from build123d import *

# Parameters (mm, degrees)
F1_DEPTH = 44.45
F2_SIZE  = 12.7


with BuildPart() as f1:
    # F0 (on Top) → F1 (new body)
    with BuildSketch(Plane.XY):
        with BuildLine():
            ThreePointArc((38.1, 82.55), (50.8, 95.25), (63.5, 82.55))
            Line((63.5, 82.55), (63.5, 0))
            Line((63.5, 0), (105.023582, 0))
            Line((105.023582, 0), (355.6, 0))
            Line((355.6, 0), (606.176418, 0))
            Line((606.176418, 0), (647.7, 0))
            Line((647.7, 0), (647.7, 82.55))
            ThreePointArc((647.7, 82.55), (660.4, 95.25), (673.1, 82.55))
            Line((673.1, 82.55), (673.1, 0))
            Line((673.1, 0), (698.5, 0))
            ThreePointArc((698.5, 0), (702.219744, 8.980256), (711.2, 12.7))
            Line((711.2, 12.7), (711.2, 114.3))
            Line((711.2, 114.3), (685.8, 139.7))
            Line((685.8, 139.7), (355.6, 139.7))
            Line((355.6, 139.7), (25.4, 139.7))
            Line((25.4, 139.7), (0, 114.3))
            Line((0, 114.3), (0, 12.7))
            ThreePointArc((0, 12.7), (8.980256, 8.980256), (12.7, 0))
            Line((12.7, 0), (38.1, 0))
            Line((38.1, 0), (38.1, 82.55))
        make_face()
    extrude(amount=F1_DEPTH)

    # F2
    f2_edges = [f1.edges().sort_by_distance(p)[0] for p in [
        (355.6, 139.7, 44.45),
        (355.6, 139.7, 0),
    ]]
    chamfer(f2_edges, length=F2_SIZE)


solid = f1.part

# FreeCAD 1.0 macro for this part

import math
import FreeCAD as App
import Part
import Sketcher
Q = App.Units.Quantity


def edges_at(feature, points):
    """Names of the edges that pass closest to the given points."""
    edges = feature.Shape.Edges
    near = lambda p: min(range(len(edges)), key=lambda i: edges[i].distToShape(Part.Vertex(*p))[0])
    return sorted({f"Edge{near(p) + 1}" for p in points})

doc = App.newDocument("Part")
body = doc.addObject("PartDesign::Body", "Body")

# Sketch on XY plane
sketch1 = doc.addObject("Sketcher::SketchObject", "Sketch")
body.addObject(sketch1)
sketch1.AttachmentSupport = (doc.XY_Plane, [""])
sketch1.MapMode = "FlatFace"
sketch1.addGeometry(Part.ArcOfCircle(Part.Circle(App.Vector(51, 83, 0), App.Vector(0, 0, 1), 13), math.radians(0), math.radians(180)), False)
sketch1.addGeometry(Part.LineSegment(App.Vector(64, 83, 0), App.Vector(64, 0, 0)), False)
sketch1.addGeometry(Part.LineSegment(App.Vector(64, 0, 0), App.Vector(648, 0, 0)), False)
sketch1.addGeometry(Part.LineSegment(App.Vector(648, 0, 0), App.Vector(648, 83, 0)), False)
sketch1.addGeometry(Part.ArcOfCircle(Part.Circle(App.Vector(660, 83, 0), App.Vector(0, 0, 1), 13), math.radians(0), math.radians(180)), False)
sketch1.addGeometry(Part.LineSegment(App.Vector(673, 83, 0), App.Vector(673, 0, 0)), False)
sketch1.addGeometry(Part.LineSegment(App.Vector(673, 0, 0), App.Vector(698, 0, 0)), False)
sketch1.addGeometry(Part.ArcOfCircle(Part.Circle(App.Vector(711, 0, 0), App.Vector(0, 0, 1), 13), math.radians(90), math.radians(180)), False)
sketch1.addGeometry(Part.LineSegment(App.Vector(711, 13, 0), App.Vector(711, 114, 0)), False)
sketch1.addGeometry(Part.LineSegment(App.Vector(711, 114, 0), App.Vector(686, 140, 0)), False)
sketch1.addGeometry(Part.LineSegment(App.Vector(686, 140, 0), App.Vector(25, 140, 0)), False)
sketch1.addGeometry(Part.LineSegment(App.Vector(25, 140, 0), App.Vector(0, 114, 0)), False)
sketch1.addGeometry(Part.LineSegment(App.Vector(0, 114, 0), App.Vector(0, 13, 0)), False)
sketch1.addGeometry(Part.ArcOfCircle(Part.Circle(App.Vector(0, 0, 0), App.Vector(0, 0, 1), 13), math.radians(0), math.radians(90)), False)
sketch1.addGeometry(Part.LineSegment(App.Vector(13, 0, 0), App.Vector(38, 0, 0)), False)
sketch1.addGeometry(Part.LineSegment(App.Vector(38, 0, 0), App.Vector(38, 83, 0)), False)
sketch1.addConstraint(Sketcher.Constraint("Tangent", 0, 1, 1, 1))
sketch1.addConstraint(Sketcher.Constraint("Coincident", 1, 2, 2, 1))
sketch1.addConstraint(Sketcher.Constraint("Coincident", 2, 2, 3, 1))
sketch1.addConstraint(Sketcher.Constraint("Tangent", 3, 2, 4, 2))
sketch1.addConstraint(Sketcher.Constraint("Tangent", 4, 1, 5, 1))
sketch1.addConstraint(Sketcher.Constraint("Coincident", 5, 2, 6, 1))
sketch1.addConstraint(Sketcher.Constraint("Coincident", 6, 2, 7, 2))
sketch1.addConstraint(Sketcher.Constraint("Coincident", 7, 1, 8, 1))
sketch1.addConstraint(Sketcher.Constraint("Coincident", 8, 2, 9, 1))
sketch1.addConstraint(Sketcher.Constraint("Coincident", 9, 2, 10, 1))
sketch1.addConstraint(Sketcher.Constraint("Coincident", 10, 2, 11, 1))
sketch1.addConstraint(Sketcher.Constraint("Coincident", 11, 2, 12, 1))
sketch1.addConstraint(Sketcher.Constraint("Coincident", 12, 2, 13, 2))
sketch1.addConstraint(Sketcher.Constraint("Coincident", 13, 1, 14, 1))
sketch1.addConstraint(Sketcher.Constraint("Coincident", 14, 2, 15, 1))
sketch1.addConstraint(Sketcher.Constraint("Tangent", 15, 2, 0, 2))
sketch1.addConstraint(Sketcher.Constraint("Vertical", 1))
sketch1.addConstraint(Sketcher.Constraint("Horizontal", 2))
sketch1.addConstraint(Sketcher.Constraint("Vertical", 3))
sketch1.addConstraint(Sketcher.Constraint("Vertical", 5))
sketch1.addConstraint(Sketcher.Constraint("Horizontal", 6))
sketch1.addConstraint(Sketcher.Constraint("Vertical", 8))
sketch1.addConstraint(Sketcher.Constraint("Horizontal", 10))
sketch1.addConstraint(Sketcher.Constraint("Vertical", 12))
sketch1.addConstraint(Sketcher.Constraint("Horizontal", 14))
sketch1.addConstraint(Sketcher.Constraint("Vertical", 15))
sketch1.addConstraint(Sketcher.Constraint("Coincident", 13, 3, -1, 1))
sketch1.addConstraint(Sketcher.Constraint("Equal", 0, 4))
sketch1.addConstraint(Sketcher.Constraint("Equal", 4, 7))
sketch1.addConstraint(Sketcher.Constraint("Equal", 7, 13))
sketch1.addConstraint(Sketcher.Constraint("PointOnObject", 7, 3, -1))
sketch1.addConstraint(Sketcher.Constraint("PointOnObject", 1, 2, -1))
sketch1.addConstraint(Sketcher.Constraint("PointOnObject", 5, 2, -1))
sketch1.addConstraint(Sketcher.Constraint("PointOnObject", 11, 2, -2))
sketch1.addConstraint(Sketcher.Constraint("PointOnObject", 13, 1, -1))
sketch1.addConstraint(Sketcher.Constraint("Perpendicular", 9, 11))
sketch1.addConstraint(Sketcher.Constraint("Horizontal", 0, 3, 4, 3))
sketch1.addConstraint(Sketcher.Constraint("Horizontal", 8, 2, 11, 2))
sketch1.addConstraint(Sketcher.Constraint("Equal", 6, 14))
sketch1.addConstraint(Sketcher.Constraint("Equal", 9, 11))
sketch1.addConstraint(Sketcher.Constraint("Radius", 0, Q("0.5 in")))
sketch1.addConstraint(Sketcher.Constraint("DistanceX", 2, 1, 2, 2, Q("23 in")))
sketch1.addConstraint(Sketcher.Constraint("DistanceX", 6, 1, 6, 2, Q("1 in")))
sketch1.addConstraint(Sketcher.Constraint("DistanceX", 10, 2, 10, 1, Q("26 in")))
sketch1.addConstraint(Sketcher.Constraint("DistanceY", 8, 1, 8, 2, Q("4 in")))
sketch1.addConstraint(Sketcher.Constraint("DistanceX", -1, 1, 7, 1, Q("28 in")))
sketch1.addConstraint(Sketcher.Constraint("DistanceY", 1, 2, 1, 1, Q("3.25 in")))
pad1 = doc.addObject("PartDesign::Pad", "Pad")
body.addObject(pad1)
pad1.Profile = sketch1
pad1.Length = Q("1.75 in")
doc.recompute()

chamfer = doc.addObject("PartDesign::Chamfer", "Chamfer")
body.addObject(chamfer)
chamfer.Base = (pad1, edges_at(pad1, [(355.6, 139.7, 44.45), (355.6, 139.7, 0)]))
chamfer.Size = Q("0.5 in")

doc.recompute()
